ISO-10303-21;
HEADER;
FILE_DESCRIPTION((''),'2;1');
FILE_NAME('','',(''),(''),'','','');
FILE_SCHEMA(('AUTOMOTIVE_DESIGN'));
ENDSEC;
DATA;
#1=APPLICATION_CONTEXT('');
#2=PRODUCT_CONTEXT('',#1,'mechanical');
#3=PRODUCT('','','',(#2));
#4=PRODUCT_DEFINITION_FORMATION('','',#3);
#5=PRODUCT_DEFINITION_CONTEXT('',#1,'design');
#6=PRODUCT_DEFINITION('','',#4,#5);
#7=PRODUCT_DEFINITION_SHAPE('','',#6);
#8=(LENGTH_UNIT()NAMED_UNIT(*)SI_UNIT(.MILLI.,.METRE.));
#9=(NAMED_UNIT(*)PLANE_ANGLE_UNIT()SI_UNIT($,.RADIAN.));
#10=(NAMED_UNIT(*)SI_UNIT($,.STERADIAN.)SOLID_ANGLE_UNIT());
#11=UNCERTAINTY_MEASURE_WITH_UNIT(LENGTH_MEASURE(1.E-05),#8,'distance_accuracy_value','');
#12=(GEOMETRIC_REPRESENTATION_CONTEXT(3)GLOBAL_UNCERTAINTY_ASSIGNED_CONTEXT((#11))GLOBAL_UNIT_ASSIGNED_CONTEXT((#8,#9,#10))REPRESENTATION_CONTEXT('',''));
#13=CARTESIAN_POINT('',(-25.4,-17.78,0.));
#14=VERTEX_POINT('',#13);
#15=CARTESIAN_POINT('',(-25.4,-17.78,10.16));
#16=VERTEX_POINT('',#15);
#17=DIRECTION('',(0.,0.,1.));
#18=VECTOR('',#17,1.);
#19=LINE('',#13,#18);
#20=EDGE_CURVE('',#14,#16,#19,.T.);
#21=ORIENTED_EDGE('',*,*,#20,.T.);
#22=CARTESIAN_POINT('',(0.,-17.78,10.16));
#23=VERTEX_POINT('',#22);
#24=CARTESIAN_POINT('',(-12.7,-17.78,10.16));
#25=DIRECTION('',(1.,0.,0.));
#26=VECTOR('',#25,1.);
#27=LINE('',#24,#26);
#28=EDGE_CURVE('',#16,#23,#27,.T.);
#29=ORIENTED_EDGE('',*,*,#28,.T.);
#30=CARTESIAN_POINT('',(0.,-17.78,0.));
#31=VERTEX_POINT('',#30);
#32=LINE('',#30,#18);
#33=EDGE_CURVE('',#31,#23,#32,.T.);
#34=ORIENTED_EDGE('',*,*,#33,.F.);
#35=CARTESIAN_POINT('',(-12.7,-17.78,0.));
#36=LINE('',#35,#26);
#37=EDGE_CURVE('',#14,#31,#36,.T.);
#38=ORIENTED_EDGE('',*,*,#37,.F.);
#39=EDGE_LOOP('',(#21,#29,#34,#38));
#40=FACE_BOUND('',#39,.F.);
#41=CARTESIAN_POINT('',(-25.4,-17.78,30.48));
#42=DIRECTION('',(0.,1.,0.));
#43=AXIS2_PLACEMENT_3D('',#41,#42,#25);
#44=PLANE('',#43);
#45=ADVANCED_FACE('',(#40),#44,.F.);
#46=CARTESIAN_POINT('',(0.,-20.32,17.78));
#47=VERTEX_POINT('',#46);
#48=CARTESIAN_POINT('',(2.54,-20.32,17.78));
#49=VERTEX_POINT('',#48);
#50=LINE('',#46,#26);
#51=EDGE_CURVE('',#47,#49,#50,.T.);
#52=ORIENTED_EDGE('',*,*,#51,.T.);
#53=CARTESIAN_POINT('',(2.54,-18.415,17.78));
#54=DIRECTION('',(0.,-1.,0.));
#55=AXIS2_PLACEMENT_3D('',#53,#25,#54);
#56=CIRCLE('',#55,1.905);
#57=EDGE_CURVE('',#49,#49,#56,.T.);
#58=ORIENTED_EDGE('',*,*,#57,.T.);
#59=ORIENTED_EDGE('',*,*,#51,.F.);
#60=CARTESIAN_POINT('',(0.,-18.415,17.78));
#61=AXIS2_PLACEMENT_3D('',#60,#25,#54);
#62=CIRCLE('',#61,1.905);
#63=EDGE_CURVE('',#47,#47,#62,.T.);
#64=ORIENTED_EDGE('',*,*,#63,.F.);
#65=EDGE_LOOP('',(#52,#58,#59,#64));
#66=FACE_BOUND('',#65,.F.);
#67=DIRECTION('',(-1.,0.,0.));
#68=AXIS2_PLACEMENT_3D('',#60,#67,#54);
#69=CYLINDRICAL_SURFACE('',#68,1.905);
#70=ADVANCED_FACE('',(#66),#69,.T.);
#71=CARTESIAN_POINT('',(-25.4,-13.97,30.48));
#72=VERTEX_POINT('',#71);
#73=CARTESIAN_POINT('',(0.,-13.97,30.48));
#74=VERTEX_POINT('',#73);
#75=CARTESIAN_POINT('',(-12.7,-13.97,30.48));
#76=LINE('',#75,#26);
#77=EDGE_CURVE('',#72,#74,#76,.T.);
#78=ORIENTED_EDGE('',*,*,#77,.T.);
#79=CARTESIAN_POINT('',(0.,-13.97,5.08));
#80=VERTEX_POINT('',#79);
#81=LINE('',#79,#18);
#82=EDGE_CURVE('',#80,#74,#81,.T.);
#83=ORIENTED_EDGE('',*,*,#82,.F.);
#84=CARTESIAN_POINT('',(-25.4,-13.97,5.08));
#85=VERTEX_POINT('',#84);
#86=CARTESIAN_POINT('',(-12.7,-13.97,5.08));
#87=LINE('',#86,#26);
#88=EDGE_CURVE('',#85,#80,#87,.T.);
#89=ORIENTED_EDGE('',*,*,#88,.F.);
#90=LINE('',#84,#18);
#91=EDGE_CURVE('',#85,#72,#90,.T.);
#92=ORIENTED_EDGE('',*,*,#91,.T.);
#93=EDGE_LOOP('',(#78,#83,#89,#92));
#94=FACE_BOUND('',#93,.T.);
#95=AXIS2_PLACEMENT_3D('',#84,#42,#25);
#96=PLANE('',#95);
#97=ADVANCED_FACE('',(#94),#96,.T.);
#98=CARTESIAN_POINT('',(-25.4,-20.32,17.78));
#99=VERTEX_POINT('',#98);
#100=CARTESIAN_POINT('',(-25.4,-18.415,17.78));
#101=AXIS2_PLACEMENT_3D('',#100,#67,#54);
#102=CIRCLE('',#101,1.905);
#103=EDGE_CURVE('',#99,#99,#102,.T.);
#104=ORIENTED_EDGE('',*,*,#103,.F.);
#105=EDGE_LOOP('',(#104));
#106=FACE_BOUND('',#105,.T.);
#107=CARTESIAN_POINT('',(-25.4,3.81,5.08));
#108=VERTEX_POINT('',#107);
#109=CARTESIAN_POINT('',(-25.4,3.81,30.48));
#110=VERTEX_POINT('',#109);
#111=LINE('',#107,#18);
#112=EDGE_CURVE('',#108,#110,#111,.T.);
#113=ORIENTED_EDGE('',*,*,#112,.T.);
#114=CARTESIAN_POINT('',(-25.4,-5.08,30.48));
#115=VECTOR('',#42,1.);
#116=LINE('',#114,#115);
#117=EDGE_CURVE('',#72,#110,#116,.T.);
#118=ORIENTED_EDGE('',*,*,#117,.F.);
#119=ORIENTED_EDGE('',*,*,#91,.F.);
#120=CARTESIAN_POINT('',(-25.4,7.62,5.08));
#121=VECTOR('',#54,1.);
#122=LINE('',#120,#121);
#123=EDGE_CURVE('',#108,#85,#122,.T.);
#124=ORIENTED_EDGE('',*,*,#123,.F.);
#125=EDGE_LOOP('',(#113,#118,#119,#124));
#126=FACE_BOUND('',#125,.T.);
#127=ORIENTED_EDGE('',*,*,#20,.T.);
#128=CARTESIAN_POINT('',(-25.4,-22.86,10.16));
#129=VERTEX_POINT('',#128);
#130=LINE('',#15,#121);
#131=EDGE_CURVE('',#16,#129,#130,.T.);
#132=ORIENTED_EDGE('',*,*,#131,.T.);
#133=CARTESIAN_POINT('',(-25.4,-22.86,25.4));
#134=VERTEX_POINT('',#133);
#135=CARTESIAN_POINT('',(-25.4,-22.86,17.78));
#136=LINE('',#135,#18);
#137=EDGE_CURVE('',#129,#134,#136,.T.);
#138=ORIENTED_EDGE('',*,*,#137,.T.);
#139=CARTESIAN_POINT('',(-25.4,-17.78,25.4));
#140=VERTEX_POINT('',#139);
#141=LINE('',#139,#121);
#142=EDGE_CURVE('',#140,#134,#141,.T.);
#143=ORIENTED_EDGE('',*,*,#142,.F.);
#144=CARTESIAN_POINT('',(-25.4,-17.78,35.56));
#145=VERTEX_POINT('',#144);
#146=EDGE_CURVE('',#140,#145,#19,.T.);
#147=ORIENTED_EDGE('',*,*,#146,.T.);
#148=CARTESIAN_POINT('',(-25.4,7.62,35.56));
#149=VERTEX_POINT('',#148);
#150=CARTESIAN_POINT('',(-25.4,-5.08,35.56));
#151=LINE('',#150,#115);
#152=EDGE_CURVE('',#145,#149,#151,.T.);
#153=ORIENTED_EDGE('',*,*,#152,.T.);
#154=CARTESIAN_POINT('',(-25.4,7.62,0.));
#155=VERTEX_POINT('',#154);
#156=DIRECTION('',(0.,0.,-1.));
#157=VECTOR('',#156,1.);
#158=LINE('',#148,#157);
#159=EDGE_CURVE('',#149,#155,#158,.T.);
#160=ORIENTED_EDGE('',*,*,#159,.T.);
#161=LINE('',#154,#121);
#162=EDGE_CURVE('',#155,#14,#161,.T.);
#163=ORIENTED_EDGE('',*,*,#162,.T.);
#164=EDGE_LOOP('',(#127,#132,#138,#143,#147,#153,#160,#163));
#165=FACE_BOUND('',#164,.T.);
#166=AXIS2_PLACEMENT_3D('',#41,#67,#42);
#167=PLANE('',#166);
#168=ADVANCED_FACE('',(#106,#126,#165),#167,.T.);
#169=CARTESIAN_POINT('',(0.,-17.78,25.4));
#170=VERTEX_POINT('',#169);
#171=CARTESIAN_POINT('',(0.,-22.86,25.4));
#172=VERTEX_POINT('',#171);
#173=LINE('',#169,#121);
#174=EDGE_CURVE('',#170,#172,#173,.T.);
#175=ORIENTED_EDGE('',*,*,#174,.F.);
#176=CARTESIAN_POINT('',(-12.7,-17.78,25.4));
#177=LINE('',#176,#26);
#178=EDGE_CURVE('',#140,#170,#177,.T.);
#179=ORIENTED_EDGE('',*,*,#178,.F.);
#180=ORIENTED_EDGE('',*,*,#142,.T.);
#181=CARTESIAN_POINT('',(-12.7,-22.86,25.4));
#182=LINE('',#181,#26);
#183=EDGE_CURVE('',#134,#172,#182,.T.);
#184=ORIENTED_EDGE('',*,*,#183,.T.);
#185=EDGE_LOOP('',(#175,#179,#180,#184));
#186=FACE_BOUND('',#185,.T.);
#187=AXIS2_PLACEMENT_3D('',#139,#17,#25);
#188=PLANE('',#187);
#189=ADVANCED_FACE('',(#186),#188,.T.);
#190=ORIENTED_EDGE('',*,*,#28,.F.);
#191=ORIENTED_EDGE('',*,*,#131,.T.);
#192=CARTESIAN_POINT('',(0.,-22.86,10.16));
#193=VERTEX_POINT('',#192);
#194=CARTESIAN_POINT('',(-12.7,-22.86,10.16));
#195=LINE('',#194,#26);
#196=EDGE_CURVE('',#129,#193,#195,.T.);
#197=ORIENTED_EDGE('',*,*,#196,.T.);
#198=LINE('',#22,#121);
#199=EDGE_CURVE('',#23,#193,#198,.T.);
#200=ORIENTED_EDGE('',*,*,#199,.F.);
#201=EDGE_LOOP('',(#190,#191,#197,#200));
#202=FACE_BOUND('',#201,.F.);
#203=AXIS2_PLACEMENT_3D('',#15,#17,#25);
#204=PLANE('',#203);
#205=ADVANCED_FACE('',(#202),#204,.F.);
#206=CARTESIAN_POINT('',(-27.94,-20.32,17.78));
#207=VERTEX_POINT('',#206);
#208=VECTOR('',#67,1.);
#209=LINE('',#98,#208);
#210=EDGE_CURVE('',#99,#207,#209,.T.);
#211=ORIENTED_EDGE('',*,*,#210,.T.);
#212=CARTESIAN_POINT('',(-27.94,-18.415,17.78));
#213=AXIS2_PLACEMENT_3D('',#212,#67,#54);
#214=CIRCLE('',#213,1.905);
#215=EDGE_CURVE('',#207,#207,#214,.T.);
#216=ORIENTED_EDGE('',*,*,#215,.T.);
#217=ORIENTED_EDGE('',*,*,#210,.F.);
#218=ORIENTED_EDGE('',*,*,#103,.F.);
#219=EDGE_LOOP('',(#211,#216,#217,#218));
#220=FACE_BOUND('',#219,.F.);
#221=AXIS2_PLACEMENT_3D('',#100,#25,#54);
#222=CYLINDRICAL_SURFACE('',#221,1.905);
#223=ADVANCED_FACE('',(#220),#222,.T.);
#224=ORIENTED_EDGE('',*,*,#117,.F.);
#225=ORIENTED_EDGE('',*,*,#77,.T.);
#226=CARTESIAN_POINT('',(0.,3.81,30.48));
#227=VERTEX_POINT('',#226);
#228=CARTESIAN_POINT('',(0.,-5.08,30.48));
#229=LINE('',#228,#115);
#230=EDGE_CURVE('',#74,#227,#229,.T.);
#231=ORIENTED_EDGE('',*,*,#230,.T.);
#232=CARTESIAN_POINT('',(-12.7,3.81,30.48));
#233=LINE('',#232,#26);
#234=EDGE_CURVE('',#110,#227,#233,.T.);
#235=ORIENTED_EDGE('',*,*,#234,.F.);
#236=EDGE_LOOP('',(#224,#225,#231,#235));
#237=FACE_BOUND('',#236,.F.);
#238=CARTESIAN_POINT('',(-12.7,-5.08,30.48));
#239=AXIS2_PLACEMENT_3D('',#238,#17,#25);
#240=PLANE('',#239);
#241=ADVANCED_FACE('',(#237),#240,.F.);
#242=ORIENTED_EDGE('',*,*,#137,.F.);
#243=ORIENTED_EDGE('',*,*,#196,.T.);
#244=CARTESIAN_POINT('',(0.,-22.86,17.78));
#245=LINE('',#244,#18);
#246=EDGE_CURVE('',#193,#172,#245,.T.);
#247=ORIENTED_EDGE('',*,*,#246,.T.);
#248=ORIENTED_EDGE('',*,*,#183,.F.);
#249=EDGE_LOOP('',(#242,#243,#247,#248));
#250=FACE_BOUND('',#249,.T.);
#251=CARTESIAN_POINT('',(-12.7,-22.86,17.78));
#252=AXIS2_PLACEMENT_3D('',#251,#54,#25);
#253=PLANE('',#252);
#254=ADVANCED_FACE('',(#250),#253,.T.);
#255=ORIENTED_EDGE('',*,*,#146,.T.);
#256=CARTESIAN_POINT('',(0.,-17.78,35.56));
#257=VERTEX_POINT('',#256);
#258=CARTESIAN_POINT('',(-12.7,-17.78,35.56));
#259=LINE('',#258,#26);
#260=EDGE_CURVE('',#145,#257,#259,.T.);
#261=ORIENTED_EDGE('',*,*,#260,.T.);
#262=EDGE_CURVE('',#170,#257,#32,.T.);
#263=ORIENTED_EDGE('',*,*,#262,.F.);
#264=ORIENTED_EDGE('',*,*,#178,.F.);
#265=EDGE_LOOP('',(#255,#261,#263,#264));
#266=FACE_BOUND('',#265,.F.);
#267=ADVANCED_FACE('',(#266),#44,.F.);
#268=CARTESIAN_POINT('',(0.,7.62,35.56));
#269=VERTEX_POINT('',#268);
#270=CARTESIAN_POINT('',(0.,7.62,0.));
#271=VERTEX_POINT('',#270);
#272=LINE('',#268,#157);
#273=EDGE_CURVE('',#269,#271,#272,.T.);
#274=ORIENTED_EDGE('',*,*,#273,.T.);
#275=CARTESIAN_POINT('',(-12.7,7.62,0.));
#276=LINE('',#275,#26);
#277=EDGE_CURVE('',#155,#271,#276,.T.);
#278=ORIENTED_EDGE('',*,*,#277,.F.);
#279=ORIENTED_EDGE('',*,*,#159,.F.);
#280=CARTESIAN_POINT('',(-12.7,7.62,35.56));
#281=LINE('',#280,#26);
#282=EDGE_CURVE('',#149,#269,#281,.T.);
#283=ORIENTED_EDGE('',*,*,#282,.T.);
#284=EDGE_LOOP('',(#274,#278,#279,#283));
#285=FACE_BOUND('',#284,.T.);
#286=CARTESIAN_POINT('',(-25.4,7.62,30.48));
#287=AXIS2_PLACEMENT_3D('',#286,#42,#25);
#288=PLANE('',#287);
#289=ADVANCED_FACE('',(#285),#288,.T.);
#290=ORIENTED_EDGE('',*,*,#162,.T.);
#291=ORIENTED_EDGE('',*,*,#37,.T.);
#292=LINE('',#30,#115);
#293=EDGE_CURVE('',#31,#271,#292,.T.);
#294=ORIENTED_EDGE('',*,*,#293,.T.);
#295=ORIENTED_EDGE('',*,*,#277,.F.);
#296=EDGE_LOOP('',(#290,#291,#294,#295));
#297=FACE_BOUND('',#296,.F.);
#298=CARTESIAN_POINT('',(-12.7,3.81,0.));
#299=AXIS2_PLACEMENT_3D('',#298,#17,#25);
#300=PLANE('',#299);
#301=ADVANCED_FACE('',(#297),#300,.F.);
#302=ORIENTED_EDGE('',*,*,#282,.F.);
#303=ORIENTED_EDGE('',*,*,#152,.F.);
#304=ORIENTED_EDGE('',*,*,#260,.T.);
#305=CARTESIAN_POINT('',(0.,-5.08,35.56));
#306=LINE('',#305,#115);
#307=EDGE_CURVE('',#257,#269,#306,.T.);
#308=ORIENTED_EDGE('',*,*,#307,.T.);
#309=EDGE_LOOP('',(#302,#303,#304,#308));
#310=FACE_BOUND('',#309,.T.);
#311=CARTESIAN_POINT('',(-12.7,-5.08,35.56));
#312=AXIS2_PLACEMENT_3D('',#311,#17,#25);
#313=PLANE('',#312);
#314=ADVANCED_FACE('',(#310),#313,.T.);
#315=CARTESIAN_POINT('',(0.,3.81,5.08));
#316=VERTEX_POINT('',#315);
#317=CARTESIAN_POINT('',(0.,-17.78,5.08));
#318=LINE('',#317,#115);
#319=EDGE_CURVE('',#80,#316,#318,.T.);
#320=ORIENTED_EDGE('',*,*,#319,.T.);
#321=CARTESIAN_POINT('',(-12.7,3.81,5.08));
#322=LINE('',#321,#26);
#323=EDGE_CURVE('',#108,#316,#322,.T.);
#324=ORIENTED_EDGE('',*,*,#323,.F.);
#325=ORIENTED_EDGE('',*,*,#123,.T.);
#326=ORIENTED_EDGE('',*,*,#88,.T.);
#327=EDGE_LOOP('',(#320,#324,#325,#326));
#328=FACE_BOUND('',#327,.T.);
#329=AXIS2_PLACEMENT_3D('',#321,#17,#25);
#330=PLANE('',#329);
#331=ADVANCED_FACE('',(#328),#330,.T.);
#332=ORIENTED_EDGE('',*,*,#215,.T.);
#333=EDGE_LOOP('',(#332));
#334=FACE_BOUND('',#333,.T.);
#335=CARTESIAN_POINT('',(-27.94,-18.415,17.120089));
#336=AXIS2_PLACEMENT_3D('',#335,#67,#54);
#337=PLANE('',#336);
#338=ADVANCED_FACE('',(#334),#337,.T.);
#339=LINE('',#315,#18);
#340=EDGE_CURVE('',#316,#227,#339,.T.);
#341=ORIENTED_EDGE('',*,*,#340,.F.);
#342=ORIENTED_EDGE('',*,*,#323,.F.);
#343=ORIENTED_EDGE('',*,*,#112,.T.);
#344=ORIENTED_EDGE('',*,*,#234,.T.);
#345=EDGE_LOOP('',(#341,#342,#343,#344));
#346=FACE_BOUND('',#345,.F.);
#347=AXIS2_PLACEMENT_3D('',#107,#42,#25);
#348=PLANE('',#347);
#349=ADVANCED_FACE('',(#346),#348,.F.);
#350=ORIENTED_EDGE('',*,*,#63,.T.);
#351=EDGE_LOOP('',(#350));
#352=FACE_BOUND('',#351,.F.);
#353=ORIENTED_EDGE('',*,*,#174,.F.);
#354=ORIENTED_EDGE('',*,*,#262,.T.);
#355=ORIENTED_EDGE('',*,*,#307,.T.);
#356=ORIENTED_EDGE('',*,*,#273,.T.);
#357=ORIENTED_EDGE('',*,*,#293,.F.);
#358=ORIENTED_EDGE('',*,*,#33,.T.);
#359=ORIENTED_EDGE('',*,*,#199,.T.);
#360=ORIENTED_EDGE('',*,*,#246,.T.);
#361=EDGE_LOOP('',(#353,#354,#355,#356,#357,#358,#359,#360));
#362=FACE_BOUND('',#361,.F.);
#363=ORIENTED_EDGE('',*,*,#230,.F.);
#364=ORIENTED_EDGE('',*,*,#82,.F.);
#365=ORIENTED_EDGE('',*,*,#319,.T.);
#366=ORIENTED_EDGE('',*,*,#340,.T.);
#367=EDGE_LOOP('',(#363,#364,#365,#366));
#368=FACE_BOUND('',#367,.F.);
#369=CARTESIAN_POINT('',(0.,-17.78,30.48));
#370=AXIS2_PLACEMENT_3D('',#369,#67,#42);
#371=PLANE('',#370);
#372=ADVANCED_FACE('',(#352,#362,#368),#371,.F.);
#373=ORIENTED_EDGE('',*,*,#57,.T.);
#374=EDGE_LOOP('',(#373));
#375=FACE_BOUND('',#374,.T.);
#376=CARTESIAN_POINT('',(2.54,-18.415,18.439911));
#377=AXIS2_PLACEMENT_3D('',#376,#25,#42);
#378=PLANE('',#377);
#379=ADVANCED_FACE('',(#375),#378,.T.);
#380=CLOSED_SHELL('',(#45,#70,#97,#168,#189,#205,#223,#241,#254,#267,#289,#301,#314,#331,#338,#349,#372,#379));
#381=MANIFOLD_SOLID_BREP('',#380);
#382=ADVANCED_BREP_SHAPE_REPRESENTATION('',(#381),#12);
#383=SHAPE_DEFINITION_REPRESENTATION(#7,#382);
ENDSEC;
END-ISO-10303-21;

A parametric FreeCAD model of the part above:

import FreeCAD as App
import Part
import Sketcher
Q = App.Units.Quantity


def add_polygon(sketch, points):
    """Adds a closed chain of lines whose ends are joined by coincident constraints."""
    first, n = sketch.GeometryCount, len(points)
    for a, b in zip(points, points[1:] + points[:1]):
        sketch.addGeometry(Part.LineSegment(App.Vector(*a, 0), App.Vector(*b, 0)), False)
    for i in range(n):
        sketch.addConstraint(Sketcher.Constraint("Coincident", first + i, 2, first + (i + 1) % n, 1))

doc = App.newDocument("Part")
params = doc.addObject("Spreadsheet::Sheet", "Params")
for row, (alias, value) in enumerate([
    ("sketch1_width", "1 in"),
    ("pad1_length", "0.2 in"),
    ("sketch2_width", "1 in"),
    ("sketch2_height", "0.15 in"),
    ("pad2_length", "1 in"),
    ("sketch3_width", "1 in"),
    ("pad3_length", "0.2 in"),
    ("sketch4_width", "1 in"),
    ("sketch4_height", "0.6 in"),
    ("pad4_length", "0.2 in"),
    ("sketch5_diameter", "0.15 in"),
    ("pad5_length", "0.1 in"),
    ("sketch6_diameter", "0.15 in"),
    ("pad6_length", "0.1 in"),
], start=1):
    params.set(f"A{row}", alias)
    params.set(f"B{row}", "=" + value)
    params.setAlias(f"B{row}", alias)

body = doc.addObject("PartDesign::Body", "Body")

# Sketch on XY plane
sketch1 = body.newObject("Sketcher::SketchObject", "Sketch")
sketch1.AttachmentSupport = (doc.getObject("XY_Plane"), [""])
sketch1.MapMode = "FlatFace"
add_polygon(sketch1, [(-25, 8), (-25, -18), (0, -18), (0, 8)])  # lines 0-3
sketch1.addConstraint(Sketcher.Constraint("Vertical", 0))
sketch1.addConstraint(Sketcher.Constraint("Horizontal", 1))
sketch1.addConstraint(Sketcher.Constraint("Vertical", 2))
sketch1.addConstraint(Sketcher.Constraint("Horizontal", 3))
sketch1.addConstraint(Sketcher.Constraint("PointOnObject", 1, 2, -2))
sketch1.addConstraint(Sketcher.Constraint("Equal", 3, 0))
sketch1.addConstraint(Sketcher.Constraint("DistanceX", 1, 1, 1, 2, Q("1 in")))
sketch1.addConstraint(Sketcher.Constraint("DistanceY", 0, 2, -1, 1, Q("0.7 in")))
sketch1.setExpression("Constraints[10]", "Params.sketch1_width")
pad1 = body.newObject("PartDesign::Pad", "Pad")
pad1.Profile = sketch1
pad1.setExpression("Length", "Params.pad1_length")

# Sketch on XY plane
sketch2 = body.newObject("Sketcher::SketchObject", "Sketch001")
sketch2.AttachmentSupport = (doc.getObject("XY_Plane"), [""])
sketch2.MapMode = "FlatFace"
sketch2.AttachmentOffset = App.Placement(App.Vector(0, 0, 0.2 * 25.4), App.Rotation())
add_polygon(sketch2, [(-25.4, -14), (-25.4, -17.8), (0, -17.8), (0, -14)])  # lines 0-3
add_polygon(sketch2, [(-25.4, 7.6), (-25.4, 3.8), (0, 3.8), (0, 7.6)])  # lines 4-7
sketch2.addConstraint(Sketcher.Constraint("Vertical", 0))
sketch2.addConstraint(Sketcher.Constraint("Horizontal", 1))
sketch2.addConstraint(Sketcher.Constraint("Vertical", 2))
sketch2.addConstraint(Sketcher.Constraint("Horizontal", 3))
sketch2.addConstraint(Sketcher.Constraint("Vertical", 4))
sketch2.addConstraint(Sketcher.Constraint("Horizontal", 5))
sketch2.addConstraint(Sketcher.Constraint("Vertical", 6))
sketch2.addConstraint(Sketcher.Constraint("Horizontal", 7))
sketch2.addConstraint(Sketcher.Constraint("PointOnObject", 1, 2, -2))
sketch2.addConstraint(Sketcher.Constraint("PointOnObject", 5, 2, -2))
sketch2.addConstraint(Sketcher.Constraint("Vertical", 3, 2, 4, 2))
sketch2.addConstraint(Sketcher.Constraint("Equal", 2, 4))
sketch2.addConstraint(Sketcher.Constraint("DistanceX", 1, 1, 1, 2, Q("1 in")))
sketch2.addConstraint(Sketcher.Constraint("DistanceY", 1, 2, 6, 2, Q("1 in")))
sketch2.addConstraint(Sketcher.Constraint("DistanceY", 0, 2, 0, 1, Q("0.15 in")))
sketch2.addConstraint(Sketcher.Constraint("DistanceY", 0, 2, -1, 1, Q("0.7 in")))
sketch2.setExpression("Constraints[20]", "Params.sketch2_width")
sketch2.setExpression("Constraints[22]", "Params.sketch2_height")
pad2 = body.newObject("PartDesign::Pad", "Pad001")
pad2.Profile = sketch2
pad2.setExpression("Length", "Params.pad2_length")

# Sketch on XY plane
sketch3 = body.newObject("Sketcher::SketchObject", "Sketch002")
sketch3.AttachmentSupport = (doc.getObject("XY_Plane"), [""])
sketch3.MapMode = "FlatFace"
sketch3.AttachmentOffset = App.Placement(App.Vector(0, 0, 1.2 * 25.4), App.Rotation())
add_polygon(sketch3, [(-25, 8), (-25, -18), (0, -18), (0, 8)])  # lines 0-3
sketch3.addConstraint(Sketcher.Constraint("Vertical", 0))
sketch3.addConstraint(Sketcher.Constraint("Horizontal", 1))
sketch3.addConstraint(Sketcher.Constraint("Vertical", 2))
sketch3.addConstraint(Sketcher.Constraint("Horizontal", 3))
sketch3.addConstraint(Sketcher.Constraint("PointOnObject", 1, 2, -2))
sketch3.addConstraint(Sketcher.Constraint("Equal", 3, 0))
sketch3.addConstraint(Sketcher.Constraint("DistanceX", 1, 1, 1, 2, Q("1 in")))
sketch3.addConstraint(Sketcher.Constraint("DistanceY", 0, 2, -1, 1, Q("0.7 in")))
sketch3.setExpression("Constraints[10]", "Params.sketch3_width")
pad3 = body.newObject("PartDesign::Pad", "Pad002")
pad3.Profile = sketch3
pad3.setExpression("Length", "Params.pad3_length")

# Sketch on XZ plane
sketch4 = body.newObject("Sketcher::SketchObject", "Sketch003")
sketch4.AttachmentSupport = (doc.getObject("XZ_Plane"), [""])
sketch4.MapMode = "FlatFace"
sketch4.AttachmentOffset = App.Placement(App.Vector(0, 0, 0.7 * 25.4), App.Rotation())
add_polygon(sketch4, [(-25, 25), (-25, 10), (0, 10), (0, 25)])  # lines 0-3
sketch4.addConstraint(Sketcher.Constraint("Vertical", 0))
sketch4.addConstraint(Sketcher.Constraint("Horizontal", 1))
sketch4.addConstraint(Sketcher.Constraint("Vertical", 2))
sketch4.addConstraint(Sketcher.Constraint("Horizontal", 3))
sketch4.addConstraint(Sketcher.Constraint("PointOnObject", 1, 2, -2))
sketch4.addConstraint(Sketcher.Constraint("DistanceX", 1, 1, 1, 2, Q("1 in")))
sketch4.addConstraint(Sketcher.Constraint("DistanceY", 0, 2, 0, 1, Q("0.6 in")))
sketch4.addConstraint(Sketcher.Constraint("DistanceY", -1, 1, 2, 2, Q("1 in")))
sketch4.setExpression("Constraints[9]", "Params.sketch4_width")
sketch4.setExpression("Constraints[10]", "Params.sketch4_height")
pad4 = body.newObject("PartDesign::Pad", "Pad003")
pad4.Profile = sketch4
pad4.setExpression("Length", "Params.pad4_length")

# Sketch on YZ plane
sketch5 = body.newObject("Sketcher::SketchObject", "Sketch004")
sketch5.AttachmentSupport = (doc.getObject("YZ_Plane"), [""])
sketch5.MapMode = "FlatFace"
sketch5.addGeometry(Part.Circle(App.Vector(-18.4, 17.8, 0), App.Vector(0, 0, 1), 1.9), False)
sketch5.addConstraint(Sketcher.Constraint("Diameter", 0, Q("0.15 in")))
sketch5.addConstraint(Sketcher.Constraint("DistanceY", -1, 1, 0, 3, Q("0.7 in")))
sketch5.addConstraint(Sketcher.Constraint("DistanceX", 0, 3, -1, 1, Q("0.725 in")))
sketch5.setExpression("Constraints[0]", "Params.sketch5_diameter")
pad5 = body.newObject("PartDesign::Pad", "Pad004")
pad5.Profile = sketch5
pad5.setExpression("Length", "Params.pad5_length")

# Sketch on YZ plane
sketch6 = body.newObject("Sketcher::SketchObject", "Sketch005")
sketch6.AttachmentSupport = (doc.getObject("YZ_Plane"), [""])
sketch6.MapMode = "FlatFace"
sketch6.AttachmentOffset = App.Placement(App.Vector(0, 0, -1 * 25.4), App.Rotation())
sketch6.addGeometry(Part.Circle(App.Vector(-18.4, 17.8, 0), App.Vector(0, 0, 1), 1.9), False)
sketch6.addConstraint(Sketcher.Constraint("Diameter", 0, Q("0.15 in")))
sketch6.addConstraint(Sketcher.Constraint("DistanceY", -1, 1, 0, 3, Q("0.7 in")))
sketch6.addConstraint(Sketcher.Constraint("DistanceX", 0, 3, -1, 1, Q("0.725 in")))
sketch6.setExpression("Constraints[0]", "Params.sketch6_diameter")
pad6 = body.newObject("PartDesign::Pad", "Pad005")
pad6.Profile = sketch6
pad6.setExpression("Length", "Params.pad6_length")
pad6.Reversed = True

doc.recompute()
